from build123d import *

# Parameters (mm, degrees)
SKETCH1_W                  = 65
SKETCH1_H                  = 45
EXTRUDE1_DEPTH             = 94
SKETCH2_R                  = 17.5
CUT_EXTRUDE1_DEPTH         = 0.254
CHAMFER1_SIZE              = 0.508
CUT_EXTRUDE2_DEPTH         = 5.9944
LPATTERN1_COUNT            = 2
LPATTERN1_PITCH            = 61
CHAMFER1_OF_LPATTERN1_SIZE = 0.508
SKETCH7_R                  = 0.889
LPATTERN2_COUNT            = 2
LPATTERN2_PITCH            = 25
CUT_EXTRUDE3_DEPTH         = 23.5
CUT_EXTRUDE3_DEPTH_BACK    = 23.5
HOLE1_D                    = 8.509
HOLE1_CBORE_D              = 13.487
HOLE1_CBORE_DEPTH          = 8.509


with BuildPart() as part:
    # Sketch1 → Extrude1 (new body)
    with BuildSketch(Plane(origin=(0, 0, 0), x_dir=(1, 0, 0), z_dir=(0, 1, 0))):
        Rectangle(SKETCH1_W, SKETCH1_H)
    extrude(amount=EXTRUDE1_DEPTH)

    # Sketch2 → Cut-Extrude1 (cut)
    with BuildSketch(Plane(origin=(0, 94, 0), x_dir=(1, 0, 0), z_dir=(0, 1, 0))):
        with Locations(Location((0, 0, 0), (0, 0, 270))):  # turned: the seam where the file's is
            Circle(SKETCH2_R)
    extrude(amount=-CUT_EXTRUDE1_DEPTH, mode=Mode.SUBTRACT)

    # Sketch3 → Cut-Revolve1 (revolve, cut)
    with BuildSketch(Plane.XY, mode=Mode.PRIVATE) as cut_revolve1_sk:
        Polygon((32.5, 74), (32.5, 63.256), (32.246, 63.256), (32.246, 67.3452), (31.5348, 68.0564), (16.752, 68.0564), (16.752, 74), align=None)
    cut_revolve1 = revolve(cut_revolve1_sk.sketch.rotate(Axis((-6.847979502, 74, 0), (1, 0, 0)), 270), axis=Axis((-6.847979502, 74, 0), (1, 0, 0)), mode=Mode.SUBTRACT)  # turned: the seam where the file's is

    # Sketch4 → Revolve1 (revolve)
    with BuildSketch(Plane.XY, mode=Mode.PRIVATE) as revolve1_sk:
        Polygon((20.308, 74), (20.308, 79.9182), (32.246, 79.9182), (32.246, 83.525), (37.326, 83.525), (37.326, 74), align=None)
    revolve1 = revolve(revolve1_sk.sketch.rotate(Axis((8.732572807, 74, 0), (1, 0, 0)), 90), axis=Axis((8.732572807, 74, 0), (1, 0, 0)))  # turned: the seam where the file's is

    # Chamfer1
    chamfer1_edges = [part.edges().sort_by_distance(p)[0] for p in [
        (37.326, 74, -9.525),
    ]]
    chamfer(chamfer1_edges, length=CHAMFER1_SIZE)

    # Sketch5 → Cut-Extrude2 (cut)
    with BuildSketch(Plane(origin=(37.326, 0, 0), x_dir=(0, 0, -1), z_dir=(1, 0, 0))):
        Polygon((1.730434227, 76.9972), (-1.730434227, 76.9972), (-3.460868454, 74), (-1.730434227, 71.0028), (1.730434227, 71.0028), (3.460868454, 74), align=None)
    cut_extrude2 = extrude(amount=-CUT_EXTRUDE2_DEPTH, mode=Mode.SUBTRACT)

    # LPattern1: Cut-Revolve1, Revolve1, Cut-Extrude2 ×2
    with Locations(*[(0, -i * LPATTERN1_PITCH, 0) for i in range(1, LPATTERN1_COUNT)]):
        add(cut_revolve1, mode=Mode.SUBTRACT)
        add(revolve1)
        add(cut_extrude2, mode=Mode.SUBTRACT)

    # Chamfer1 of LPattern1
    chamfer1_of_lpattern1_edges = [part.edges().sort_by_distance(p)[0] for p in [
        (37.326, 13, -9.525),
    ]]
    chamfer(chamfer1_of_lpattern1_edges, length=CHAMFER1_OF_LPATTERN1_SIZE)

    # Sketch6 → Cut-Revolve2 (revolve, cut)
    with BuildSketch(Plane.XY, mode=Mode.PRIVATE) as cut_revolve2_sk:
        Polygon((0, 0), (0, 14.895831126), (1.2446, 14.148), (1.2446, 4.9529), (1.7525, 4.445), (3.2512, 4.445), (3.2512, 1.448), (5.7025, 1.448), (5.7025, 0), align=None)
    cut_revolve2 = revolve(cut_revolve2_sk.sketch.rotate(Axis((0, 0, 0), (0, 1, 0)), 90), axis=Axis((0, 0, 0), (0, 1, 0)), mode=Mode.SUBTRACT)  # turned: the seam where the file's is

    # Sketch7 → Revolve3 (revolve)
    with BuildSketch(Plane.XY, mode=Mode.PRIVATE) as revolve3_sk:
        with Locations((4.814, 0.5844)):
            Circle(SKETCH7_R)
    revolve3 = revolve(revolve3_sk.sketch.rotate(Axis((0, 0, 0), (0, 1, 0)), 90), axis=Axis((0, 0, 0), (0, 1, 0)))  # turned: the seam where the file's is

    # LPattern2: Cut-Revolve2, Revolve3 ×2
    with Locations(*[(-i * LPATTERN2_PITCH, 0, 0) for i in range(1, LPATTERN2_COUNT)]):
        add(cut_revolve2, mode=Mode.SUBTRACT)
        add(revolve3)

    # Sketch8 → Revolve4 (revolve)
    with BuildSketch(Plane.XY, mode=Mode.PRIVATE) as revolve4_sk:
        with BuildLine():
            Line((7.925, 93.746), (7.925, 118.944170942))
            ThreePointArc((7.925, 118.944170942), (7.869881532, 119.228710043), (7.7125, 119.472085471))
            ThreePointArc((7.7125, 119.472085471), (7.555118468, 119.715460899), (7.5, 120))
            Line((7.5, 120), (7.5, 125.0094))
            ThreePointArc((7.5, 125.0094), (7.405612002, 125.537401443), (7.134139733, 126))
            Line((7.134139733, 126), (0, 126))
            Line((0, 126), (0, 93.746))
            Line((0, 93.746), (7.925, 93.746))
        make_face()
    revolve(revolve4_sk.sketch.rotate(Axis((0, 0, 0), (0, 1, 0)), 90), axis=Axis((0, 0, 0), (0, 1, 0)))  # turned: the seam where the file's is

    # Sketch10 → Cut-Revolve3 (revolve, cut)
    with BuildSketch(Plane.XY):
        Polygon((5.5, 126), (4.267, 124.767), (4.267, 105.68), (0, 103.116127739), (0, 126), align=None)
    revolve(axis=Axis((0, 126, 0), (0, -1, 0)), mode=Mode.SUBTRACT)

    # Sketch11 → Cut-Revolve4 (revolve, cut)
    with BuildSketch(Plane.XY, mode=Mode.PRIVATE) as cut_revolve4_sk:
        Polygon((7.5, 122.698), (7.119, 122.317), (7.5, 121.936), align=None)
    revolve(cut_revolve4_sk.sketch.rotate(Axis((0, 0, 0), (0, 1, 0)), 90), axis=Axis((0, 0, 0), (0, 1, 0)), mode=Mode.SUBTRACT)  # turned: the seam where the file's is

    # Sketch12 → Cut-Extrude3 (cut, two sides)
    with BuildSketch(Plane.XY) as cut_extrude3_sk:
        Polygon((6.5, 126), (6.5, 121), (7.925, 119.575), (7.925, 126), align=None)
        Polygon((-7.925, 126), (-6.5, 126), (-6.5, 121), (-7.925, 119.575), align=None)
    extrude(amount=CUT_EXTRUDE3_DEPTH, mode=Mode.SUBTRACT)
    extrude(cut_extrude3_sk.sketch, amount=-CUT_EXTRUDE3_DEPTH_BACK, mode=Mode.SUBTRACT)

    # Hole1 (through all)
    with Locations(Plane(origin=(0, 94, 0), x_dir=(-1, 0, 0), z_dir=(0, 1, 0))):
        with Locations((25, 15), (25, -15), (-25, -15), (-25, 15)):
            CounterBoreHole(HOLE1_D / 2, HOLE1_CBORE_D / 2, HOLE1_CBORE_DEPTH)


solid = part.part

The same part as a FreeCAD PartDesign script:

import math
import FreeCAD as App
import Part
import Sketcher
from FreeCAD import Vector
Q = App.Units.Quantity


def edges_at(feature, points):
    """Names of the edges that pass closest to the given points."""
    edges = feature.Shape.Edges
    near = lambda p: min(range(len(edges)), key=lambda i: edges[i].distToShape(Part.Vertex(*p))[0])
    return sorted({f"Edge{near(p) + 1}" for p in points})

doc = App.newDocument("Part")
body = doc.addObject("PartDesign::Body", "Body")

# Sketch on XZ plane
sketch1 = body.newObject("Sketcher::SketchObject", "Sketch")
sketch1.AttachmentSupport = (doc.getObject("XZ_Plane"), [""])
sketch1.MapMode = "FlatFace"
sketch1.addGeometry([
    Part.LineSegment(Vector(-32, -22, 0), Vector(-32, 22, 0)),
    Part.LineSegment(Vector(-32, 22, 0), Vector(32, 22, 0)),
    Part.LineSegment(Vector(32, 22, 0), Vector(32, -22, 0)),
    Part.LineSegment(Vector(32, -22, 0), Vector(-32, -22, 0)),
], False)
sketch1.addConstraint([
    Sketcher.Constraint("Coincident", 0, 2, 1, 1),
    Sketcher.Constraint("Coincident", 1, 2, 2, 1),
    Sketcher.Constraint("Coincident", 2, 2, 3, 1),
    Sketcher.Constraint("Coincident", 3, 2, 0, 1),
    Sketcher.Constraint("Vertical", 0),
    Sketcher.Constraint("Horizontal", 1),
    Sketcher.Constraint("Vertical", 2),
    Sketcher.Constraint("Horizontal", 3),
    Sketcher.Constraint("Symmetric", 0, 2, 2, 2, -1, 1),
    Sketcher.Constraint("DistanceX", 1, 1, 1, 2, 65.0),
    Sketcher.Constraint("DistanceY", 0, 1, 0, 2, 45.0),
])
pad1 = body.newObject("PartDesign::Pad", "Pad")
pad1.Profile = sketch1
pad1.Length = 94
pad1.Reversed = True

# Sketch on XZ plane
sketch2 = body.newObject("Sketcher::SketchObject", "Sketch001")
sketch2.AttachmentSupport = (doc.getObject("XZ_Plane"), [""])
sketch2.MapMode = "FlatFace"
sketch2.AttachmentOffset = App.Placement(Vector(0, 0, -94), App.Rotation())
sketch2.addGeometry(Part.Circle(Vector(0, 0, 0), Vector(0, 0, 1), 18), False)
sketch2.addConstraint([
    Sketcher.Constraint("Coincident", 0, 3, -1, 1),
    Sketcher.Constraint("Diameter", 0, 35.0),
])
pocket1 = body.newObject("PartDesign::Pocket", "Pocket")
pocket1.Profile = sketch2
pocket1.Length = Q("0.01 in")
pocket1.Reversed = True

# Sketch on XY plane
sketch3 = body.newObject("Sketcher::SketchObject", "Sketch002")
sketch3.AttachmentSupport = (doc.getObject("XY_Plane"), [""])
sketch3.MapMode = "FlatFace"
sketch3.addGeometry([
    Part.LineSegment(Vector(32.5, 63.26, 0), Vector(32.5, 74, 0)),  # 0
    Part.LineSegment(Vector(32.5, 74, 0), Vector(16.75, 74, 0)),  # 1
    Part.LineSegment(Vector(16.75, 74, 0), Vector(16.75, 68.06, 0)),  # 2
    Part.LineSegment(Vector(16.75, 68.06, 0), Vector(31.53, 68.06, 0)),  # 3
    Part.LineSegment(Vector(31.53, 68.06, 0), Vector(32.25, 67.35, 0)),  # 4
    Part.LineSegment(Vector(32.25, 67.35, 0), Vector(32.25, 63.26, 0)),  # 5
    Part.LineSegment(Vector(32.25, 63.26, 0), Vector(32.5, 63.26, 0)),  # 6
], False)
sketch3.addGeometry(Part.LineSegment(Vector(16.75, 74, 0), Vector(32.5, 74, 0)), True)  # axis
sketch3.addConstraint([
    Sketcher.Constraint("Coincident", 0, 2, 1, 1),
    Sketcher.Constraint("Coincident", 1, 2, 2, 1),
    Sketcher.Constraint("Coincident", 2, 2, 3, 1),
    Sketcher.Constraint("Coincident", 3, 2, 4, 1),
    Sketcher.Constraint("Coincident", 4, 2, 5, 1),
    Sketcher.Constraint("Coincident", 5, 2, 6, 1),
    Sketcher.Constraint("Coincident", 6, 2, 0, 1),
    Sketcher.Constraint("Vertical", 0),
    Sketcher.Constraint("Horizontal", 1),
    Sketcher.Constraint("Vertical", 2),
    Sketcher.Constraint("Horizontal", 3),
    Sketcher.Constraint("Vertical", 5),
    Sketcher.Constraint("Horizontal", 6),
    Sketcher.Constraint("Horizontal", 7),
    Sketcher.Constraint("Coincident", 7, 1, 1, 2),
    Sketcher.Constraint("Vertical", 6, 2, 7, 2),
    Sketcher.Constraint("Angle", 4, Q("-45 deg")),
    Sketcher.Constraint("DistanceX", 1, 2, 1, 1, Q("0.62 in")),
    Sketcher.Constraint("DistanceX", 6, 1, 6, 2, Q("0.01 in")),
    Sketcher.Constraint("DistanceX", 3, 1, 3, 2, Q("0.582 in")),
    Sketcher.Constraint("DistanceY", 2, 2, 2, 1, Q("0.234 in")),
    Sketcher.Constraint("DistanceY", 0, 1, 0, 2, 10.744),
    Sketcher.Constraint("DistanceX", -1, 1, 0, 2, 32.5),
    Sketcher.Constraint("DistanceY", -1, 1, 0, 2, 74.0),
])
groove = body.newObject("PartDesign::Groove", "Groove")
groove.Profile = sketch3
groove.ReferenceAxis = (sketch3, ["Axis0"])
groove.Angle = 360

# Sketch on XY plane
sketch4 = body.newObject("Sketcher::SketchObject", "Sketch003")
sketch4.AttachmentSupport = (doc.getObject("XY_Plane"), [""])
sketch4.MapMode = "FlatFace"
sketch4.addGeometry([
    Part.LineSegment(Vector(20.3, 79.9, 0), Vector(20.3, 74, 0)),  # 0
    Part.LineSegment(Vector(20.3, 74, 0), Vector(37.3, 74, 0)),  # 1
    Part.LineSegment(Vector(37.3, 74, 0), Vector(37.3, 83.5, 0)),  # 2
    Part.LineSegment(Vector(37.3, 83.5, 0), Vector(32.2, 83.5, 0)),  # 3
    Part.LineSegment(Vector(32.2, 83.5, 0), Vector(32.2, 79.9, 0)),  # 4
    Part.LineSegment(Vector(32.2, 79.9, 0), Vector(20.3, 79.9, 0)),  # 5
], False)
sketch4.addGeometry(Part.LineSegment(Vector(20.3, 74, 0), Vector(37.3, 74, 0)), True)  # axis
sketch4.addConstraint([
    Sketcher.Constraint("Coincident", 0, 2, 1, 1),
    Sketcher.Constraint("Coincident", 1, 2, 2, 1),
    Sketcher.Constraint("Coincident", 2, 2, 3, 1),
    Sketcher.Constraint("Coincident", 3, 2, 4, 1),
    Sketcher.Constraint("Coincident", 4, 2, 5, 1),
    Sketcher.Constraint("Coincident", 5, 2, 0, 1),
    Sketcher.Constraint("Vertical", 0),
    Sketcher.Constraint("Horizontal", 1),
    Sketcher.Constraint("Vertical", 2),
    Sketcher.Constraint("Horizontal", 3),
    Sketcher.Constraint("Vertical", 4),
    Sketcher.Constraint("Horizontal", 5),
    Sketcher.Constraint("Horizontal", 6),
    Sketcher.Constraint("Coincident", 6, 1, 0, 2),
    Sketcher.Constraint("Vertical", 2, 2, 6, 2),
    Sketcher.Constraint("DistanceX", 3, 2, 3, 1, Q("0.2 in")),
    Sketcher.Constraint("DistanceX", 1, 1, 1, 2, Q("0.67 in")),
    Sketcher.Constraint("DistanceY", 0, 2, 0, 1, Q("0.233 in")),
    Sketcher.Constraint("DistanceY", 2, 1, 2, 2, Q("0.375 in")),
    Sketcher.Constraint("DistanceX", -1, 1, 0, 2, 20.308),
    Sketcher.Constraint("DistanceY", -1, 1, 0, 2, 74.0),
])
revolution = body.newObject("PartDesign::Revolution", "Revolution")
revolution.Profile = sketch4
revolution.ReferenceAxis = (sketch4, ["Axis0"])
revolution.Angle = 360
doc.recompute()

chamfer = body.newObject("PartDesign::Chamfer", "Chamfer")
chamfer.Base = (revolution, edges_at(revolution, [(37.326, 74, -9.525)]))
chamfer.Size = Q("0.02 in")

# Sketch on YZ plane
sketch5 = body.newObject("Sketcher::SketchObject", "Sketch004")
sketch5.AttachmentSupport = (doc.getObject("YZ_Plane"), [""])
sketch5.MapMode = "FlatFace"
sketch5.AttachmentOffset = App.Placement(Vector(0, 0, 37.326), App.Rotation())
sketch5.addGeometry([
    Part.LineSegment(Vector(77, -1.7, 0), Vector(77, 1.7, 0)),  # 0
    Part.LineSegment(Vector(77, 1.7, 0), Vector(74, 3.5, 0)),  # 1
    Part.LineSegment(Vector(74, 3.5, 0), Vector(71, 1.7, 0)),  # 2
    Part.LineSegment(Vector(71, 1.7, 0), Vector(71, -1.7, 0)),  # 3
    Part.LineSegment(Vector(71, -1.7, 0), Vector(74, -3.5, 0)),  # 4
    Part.LineSegment(Vector(74, -3.5, 0), Vector(77, -1.7, 0)),  # 5
], False)
sketch5.addConstraint([
    Sketcher.Constraint("Coincident", 0, 2, 1, 1),
    Sketcher.Constraint("Coincident", 1, 2, 2, 1),
    Sketcher.Constraint("Coincident", 2, 2, 3, 1),
    Sketcher.Constraint("Coincident", 3, 2, 4, 1),
    Sketcher.Constraint("Coincident", 4, 2, 5, 1),
    Sketcher.Constraint("Coincident", 5, 2, 0, 1),
    Sketcher.Constraint("Vertical", 0),
    Sketcher.Constraint("Vertical", 3),
    Sketcher.Constraint("Symmetric", 1, 2, 4, 2, -1),
    Sketcher.Constraint("Parallel", 1, 4),
    Sketcher.Constraint("Parallel", 2, 5),
    Sketcher.Constraint("Horizontal", 0, 2, 2, 2),
    Sketcher.Constraint("Horizontal", 3, 2, 5, 2),
    Sketcher.Constraint("Angle", 1, Q("150 deg")),
    Sketcher.Constraint("DistanceX", 1, 2, 0, 2, Q("0.118 in")),
    Sketcher.Constraint("DistanceY", 0, 1, 0, 2, 3.460868),
    Sketcher.Constraint("DistanceX", -1, 1, 0, 2, 76.9972),
])
pocket2 = body.newObject("PartDesign::Pocket", "Pocket001")
pocket2.Profile = sketch5
pocket2.Length = Q("0.236 in")
doc.recompute()

linearpattern = body.newObject("PartDesign::LinearPattern", "LinearPattern")
linearpattern.Originals = [groove, revolution, pocket2]
linearpattern.Direction = (doc.getObject("Y_Axis"), [""])
linearpattern.Mode = "offset"
linearpattern.Offset = 61
linearpattern.Occurrences = 2
linearpattern.Reversed = True
body.Tip = linearpattern
doc.recompute()

chamfer2 = body.newObject("PartDesign::Chamfer", "Chamfer001")
chamfer2.Base = (linearpattern, edges_at(linearpattern, [(37.326, 13, -9.525)]))
chamfer2.Size = Q("0.02 in")

# Sketch on XY plane
sketch6 = body.newObject("Sketcher::SketchObject", "Sketch005")
sketch6.AttachmentSupport = (doc.getObject("XY_Plane"), [""])
sketch6.MapMode = "FlatFace"
sketch6.addGeometry([
    Part.LineSegment(Vector(0, 14.9, 0), Vector(0, 0, 0)),  # 0
    Part.LineSegment(Vector(0, 0, 0), Vector(5.7, 0, 0)),  # 1
    Part.LineSegment(Vector(5.7, 0, 0), Vector(5.7, 1.4, 0)),  # 2
    Part.LineSegment(Vector(5.7, 1.4, 0), Vector(3.3, 1.4, 0)),  # 3
    Part.LineSegment(Vector(3.3, 1.4, 0), Vector(3.3, 4.4, 0)),  # 4
    Part.LineSegment(Vector(3.3, 4.4, 0), Vector(1.8, 4.4, 0)),  # 5
    Part.LineSegment(Vector(1.8, 4.4, 0), Vector(1.2, 5, 0)),  # 6
    Part.LineSegment(Vector(1.2, 5, 0), Vector(1.2, 14.1, 0)),  # 7
    Part.LineSegment(Vector(1.2, 14.1, 0), Vector(0, 14.9, 0)),  # 8
], False)
sketch6.addConstraint([
    Sketcher.Constraint("Coincident", 0, 2, 1, 1),
    Sketcher.Constraint("Coincident", 1, 2, 2, 1),
    Sketcher.Constraint("Coincident", 2, 2, 3, 1),
    Sketcher.Constraint("Coincident", 3, 2, 4, 1),
    Sketcher.Constraint("Coincident", 4, 2, 5, 1),
    Sketcher.Constraint("Coincident", 5, 2, 6, 1),
    Sketcher.Constraint("Coincident", 6, 2, 7, 1),
    Sketcher.Constraint("Coincident", 7, 2, 8, 1),
    Sketcher.Constraint("Coincident", 8, 2, 0, 1),
    Sketcher.Constraint("Vertical", 0),
    Sketcher.Constraint("Horizontal", 1),
    Sketcher.Constraint("Vertical", 2),
    Sketcher.Constraint("Horizontal", 3),
    Sketcher.Constraint("Vertical", 4),
    Sketcher.Constraint("Horizontal", 5),
    Sketcher.Constraint("Vertical", 7),
    Sketcher.Constraint("Coincident", 0, 2, -1, 1),
    Sketcher.Constraint("Angle", 6, Q("135 deg")),
    Sketcher.Constraint("Angle", 8, Q("149 deg")),
    Sketcher.Constraint("DistanceY", 3, 2, 7, 2, Q("0.5 in")),
    Sketcher.Constraint("DistanceX", -1, 1, 3, 2, Q("0.128 in")),
    Sketcher.Constraint("DistanceY", -1, 1, 4, 2, Q("0.175 in")),
    Sketcher.Constraint("DistanceX", -1, 1, 6, 2, Q("0.049 in")),
    Sketcher.Constraint("DistanceX", 1, 1, 1, 2, 5.7025),
    Sketcher.Constraint("DistanceX", 5, 2, 5, 1, 1.4987),
    Sketcher.Constraint("DistanceY", 2, 1, 2, 2, 1.448),
])
groove2 = body.newObject("PartDesign::Groove", "Groove001")
groove2.Profile = sketch6
groove2.ReferenceAxis = (sketch6, ["V_Axis"])
groove2.Angle = 360

# Sketch on XY plane
sketch7 = body.newObject("Sketcher::SketchObject", "Sketch006")
sketch7.AttachmentSupport = (doc.getObject("XY_Plane"), [""])
sketch7.MapMode = "FlatFace"
sketch7.addGeometry(Part.Circle(Vector(4.8, 0.6, 0), Vector(0, 0, 1), 0.9), False)
sketch7.addConstraint([
    Sketcher.Constraint("Diameter", 0, Q("0.07 in")),
    Sketcher.Constraint("DistanceX", -1, 1, 0, 3, 4.814),
    Sketcher.Constraint("DistanceY", -1, 1, 0, 3, 0.5844),
])
revolution2 = body.newObject("PartDesign::Revolution", "Revolution001")
revolution2.Profile = sketch7
revolution2.ReferenceAxis = (sketch7, ["V_Axis"])
revolution2.Angle = 360
doc.recompute()

linearpattern2 = body.newObject("PartDesign::LinearPattern", "LinearPattern001")
linearpattern2.Originals = [groove2, revolution2]
linearpattern2.Direction = (doc.getObject("X_Axis"), [""])
linearpattern2.Mode = "offset"
linearpattern2.Offset = 25
linearpattern2.Occurrences = 2
linearpattern2.Reversed = True
body.Tip = linearpattern2

# Sketch on XY plane
sketch8 = body.newObject("Sketcher::SketchObject", "Sketch007")
sketch8.AttachmentSupport = (doc.getObject("XY_Plane"), [""])
sketch8.MapMode = "FlatFace"
sketch8.addGeometry([
    Part.LineSegment(Vector(7.9, 93.7, 0), Vector(7.9, 118.9, 0)),  # 0
    Part.ArcOfCircle(Part.Circle(Vector(7.2, 118.9, 0), Vector(0, 0, 1), 0.8), math.radians(0), math.radians(44)),  # 1
    Part.ArcOfCircle(Part.Circle(Vector(8.3, 120, 0), Vector(0, 0, 1), 0.8), math.radians(180), math.radians(224)),  # 2
    Part.LineSegment(Vector(7.5, 120, 0), Vector(7.5, 125, 0)),  # 3
    Part.ArcOfCircle(Part.Circle(Vector(6, 125, 0), Vector(0, 0, 1), 1.5), math.radians(0), math.radians(41)),  # 4
    Part.LineSegment(Vector(7.1, 126, 0), Vector(0, 126, 0)),  # 5
    Part.LineSegment(Vector(0, 126, 0), Vector(0, 93.7, 0)),  # 6
    Part.LineSegment(Vector(0, 93.7, 0), Vector(7.9, 93.7, 0)),  # 7
], False)
sketch8.addConstraint([
    Sketcher.Constraint("Tangent", 0, 2, 1, 1),
    Sketcher.Constraint("Tangent", 1, 2, 2, 2),
    Sketcher.Constraint("Tangent", 2, 1, 3, 1),
    Sketcher.Constraint("Tangent", 3, 2, 4, 1),
    Sketcher.Constraint("Coincident", 4, 2, 5, 1),
    Sketcher.Constraint("Coincident", 5, 2, 6, 1),
    Sketcher.Constraint("Coincident", 6, 2, 7, 1),
    Sketcher.Constraint("Coincident", 7, 2, 0, 1),
    Sketcher.Constraint("Vertical", 0),
    Sketcher.Constraint("Vertical", 3),
    Sketcher.Constraint("Horizontal", 5),
    Sketcher.Constraint("Vertical", 6),
    Sketcher.Constraint("Horizontal", 7),
    Sketcher.Constraint("Equal", 1, 2),
    Sketcher.Constraint("PointOnObject", 5, 2, -2),
    Sketcher.Constraint("Radius", 1, Q("0.03 in")),
    Sketcher.Constraint("Radius", 4, Q("0.06 in")),
    Sketcher.Constraint("DistanceY", 3, 2, 4, 2, Q("0.039 in")),
    Sketcher.Constraint("DistanceX", 7, 1, 7, 2, 7.925),
    Sketcher.Constraint("DistanceY", 3, 1, 3, 2, 5.0094),
    Sketcher.Constraint("DistanceY", 6, 2, 6, 1, 32.254),
    Sketcher.Constraint("DistanceX", 5, 2, 5, 1, 7.13414),
    Sketcher.Constraint("DistanceY", -1, 1, 2, 3, 120.0),
])
revolution3 = body.newObject("PartDesign::Revolution", "Revolution002")
revolution3.Profile = sketch8
revolution3.ReferenceAxis = (sketch8, ["V_Axis"])
revolution3.Angle = 360

# Sketch on XY plane
sketch9 = body.newObject("Sketcher::SketchObject", "Sketch008")
sketch9.AttachmentSupport = (doc.getObject("XY_Plane"), [""])
sketch9.MapMode = "FlatFace"
sketch9.addGeometry([
    Part.LineSegment(Vector(4.3, 124.8, 0), Vector(5.5, 126, 0)),  # 0
    Part.LineSegment(Vector(5.5, 126, 0), Vector(0, 126, 0)),  # 1
    Part.LineSegment(Vector(0, 126, 0), Vector(0, 103.1, 0)),  # 2
    Part.LineSegment(Vector(0, 103.1, 0), Vector(4.3, 105.7, 0)),  # 3
    Part.LineSegment(Vector(4.3, 105.7, 0), Vector(4.3, 124.8, 0)),  # 4
], False)
sketch9.addConstraint([
    Sketcher.Constraint("Coincident", 0, 2, 1, 1),
    Sketcher.Constraint("Coincident", 1, 2, 2, 1),
    Sketcher.Constraint("Coincident", 2, 2, 3, 1),
    Sketcher.Constraint("Coincident", 3, 2, 4, 1),
    Sketcher.Constraint("Coincident", 4, 2, 0, 1),
    Sketcher.Constraint("Horizontal", 1),
    Sketcher.Constraint("Vertical", 2),
    Sketcher.Constraint("Vertical", 4),
    Sketcher.Constraint("PointOnObject", 1, 2, -2),
    Sketcher.Constraint("Angle", 0, Q("45 deg")),
    Sketcher.Constraint("Angle", 3, Q("31 deg")),
    Sketcher.Constraint("DistanceY", 3, 2, 0, 2, Q("0.8 in")),
    Sketcher.Constraint("DistanceX", 1, 2, 1, 1, 5.5),
    Sketcher.Constraint("DistanceY", 4, 1, 4, 2, 19.087),
    Sketcher.Constraint("DistanceY", -1, 1, 0, 2, 126.0),
])
groove3 = body.newObject("PartDesign::Groove", "Groove002")
groove3.Profile = sketch9
groove3.ReferenceAxis = (sketch9, ["V_Axis"])
groove3.Angle = 360

# Sketch on XY plane
sketch10 = body.newObject("Sketcher::SketchObject", "Sketch009")
sketch10.AttachmentSupport = (doc.getObject("XY_Plane"), [""])
sketch10.MapMode = "FlatFace"
sketch10.addGeometry([
    Part.LineSegment(Vector(7.5, 122.7, 0), Vector(7.1, 122.3, 0)),
    Part.LineSegment(Vector(7.1, 122.3, 0), Vector(7.5, 121.9, 0)),
    Part.LineSegment(Vector(7.5, 121.9, 0), Vector(7.5, 122.7, 0)),
], False)
sketch10.addConstraint([
    Sketcher.Constraint("Coincident", 0, 2, 1, 1),
    Sketcher.Constraint("Coincident", 1, 2, 2, 1),
    Sketcher.Constraint("Coincident", 2, 2, 0, 1),
    Sketcher.Constraint("Vertical", 2),
    Sketcher.Constraint("Perpendicular", 0, 1),
    Sketcher.Constraint("Equal", 0, 1),
    Sketcher.Constraint("DistanceY", 2, 1, 2, 2, Q("0.03 in")),
    Sketcher.Constraint("DistanceX", -1, 1, 0, 2, 7.119),
    Sketcher.Constraint("DistanceY", -1, 1, 0, 2, 122.317),
])
groove4 = body.newObject("PartDesign::Groove", "Groove003")
groove4.Profile = sketch10
groove4.ReferenceAxis = (sketch10, ["V_Axis"])
groove4.Angle = 360

# Sketch on XY plane
sketch11 = body.newObject("Sketcher::SketchObject", "Sketch010")
sketch11.AttachmentSupport = (doc.getObject("XY_Plane"), [""])
sketch11.MapMode = "FlatFace"
sketch11.addGeometry([
    Part.LineSegment(Vector(6.5, 126, 0), Vector(6.5, 121, 0)),  # 0
    Part.LineSegment(Vector(6.5, 121, 0), Vector(7.9, 119.6, 0)),  # 1
    Part.LineSegment(Vector(7.9, 119.6, 0), Vector(7.9, 126, 0)),  # 2
    Part.LineSegment(Vector(7.9, 126, 0), Vector(6.5, 126, 0)),  # 3
    Part.LineSegment(Vector(-6.5, 126, 0), Vector(-7.9, 126, 0)),  # 4
    Part.LineSegment(Vector(-7.9, 126, 0), Vector(-7.9, 119.6, 0)),  # 5
    Part.LineSegment(Vector(-7.9, 119.6, 0), Vector(-6.5, 121, 0)),  # 6
    Part.LineSegment(Vector(-6.5, 121, 0), Vector(-6.5, 126, 0)),  # 7
], False)
sketch11.addConstraint([
    Sketcher.Constraint("Coincident", 0, 2, 1, 1),
    Sketcher.Constraint("Coincident", 1, 2, 2, 1),
    Sketcher.Constraint("Coincident", 2, 2, 3, 1),
    Sketcher.Constraint("Coincident", 3, 2, 0, 1),
    Sketcher.Constraint("Coincident", 4, 2, 5, 1),
    Sketcher.Constraint("Coincident", 5, 2, 6, 1),
    Sketcher.Constraint("Coincident", 6, 2, 7, 1),
    Sketcher.Constraint("Coincident", 7, 2, 4, 1),
    Sketcher.Constraint("Vertical", 0),
    Sketcher.Constraint("Vertical", 2),
    Sketcher.Constraint("Horizontal", 3),
    Sketcher.Constraint("Horizontal", 4),
    Sketcher.Constraint("Vertical", 5),
    Sketcher.Constraint("Vertical", 7),
    Sketcher.Constraint("Symmetric", 2, 2, 4, 2, -2),
    Sketcher.Constraint("Symmetric", 0, 2, 6, 2, -2),
    Sketcher.Constraint("Perpendicular", 1, 6),
    Sketcher.Constraint("Horizontal", 1, 2, 5, 2),
    Sketcher.Constraint("DistanceX", 3, 2, 3, 1, 1.425),
    Sketcher.Constraint("DistanceY", 0, 2, 0, 1, 5.0),
    Sketcher.Constraint("DistanceX", -1, 1, 0, 2, 6.5),
    Sketcher.Constraint("DistanceY", -1, 1, 0, 2, 121.0),
])
pocket3 = body.newObject("PartDesign::Pocket", "Pocket002")
pocket3.Profile = sketch11
pocket3.Type = "ThroughAll"
pocket3.Midplane = True

# Sketch on XZ plane
sketch12 = body.newObject("Sketcher::SketchObject", "Sketch011")
sketch12.AttachmentSupport = (doc.getObject("XZ_Plane"), [""])
sketch12.MapMode = "FlatFace"
sketch12.AttachmentOffset = App.Placement(Vector(0, 0, -94), App.Rotation())
sketch12.addGeometry([
    Part.Circle(Vector(-25, 15, 0), Vector(0, 0, 1), 4.3),
    Part.Circle(Vector(-25, -15, 0), Vector(0, 0, 1), 4.3),
    Part.Circle(Vector(25, -15, 0), Vector(0, 0, 1), 4.3),
    Part.Circle(Vector(25, 15, 0), Vector(0, 0, 1), 4.3),
], False)
sketch12.addConstraint([
    Sketcher.Constraint("Equal", 0, 1),
    Sketcher.Constraint("Equal", 1, 2),
    Sketcher.Constraint("Equal", 2, 3),
    Sketcher.Constraint("Symmetric", 0, 3, 2, 3, -1, 1),
    Sketcher.Constraint("Symmetric", 1, 3, 3, 3, -1, 1),
    Sketcher.Constraint("Symmetric", 1, 3, 2, 3, -2),
    Sketcher.Constraint("Diameter", 0, Q("0.335 in")),
    Sketcher.Constraint("DistanceX", 0, 3, -1, 1, 25.0),
    Sketcher.Constraint("DistanceY", -1, 1, 0, 3, 15.0),
])
doc.recompute()
hole = body.newObject("PartDesign::Hole", "Hole")
hole.Profile = sketch12
hole.ThreadType = "None"
hole.Diameter = Q("0.335 in")
hole.DepthType = "ThroughAll"
hole.HoleCutType = "Counterbore"
hole.HoleCutDiameter = 13.487
hole.HoleCutDepth = Q("0.335 in")
hole.Reversed = True

doc.recompute()
